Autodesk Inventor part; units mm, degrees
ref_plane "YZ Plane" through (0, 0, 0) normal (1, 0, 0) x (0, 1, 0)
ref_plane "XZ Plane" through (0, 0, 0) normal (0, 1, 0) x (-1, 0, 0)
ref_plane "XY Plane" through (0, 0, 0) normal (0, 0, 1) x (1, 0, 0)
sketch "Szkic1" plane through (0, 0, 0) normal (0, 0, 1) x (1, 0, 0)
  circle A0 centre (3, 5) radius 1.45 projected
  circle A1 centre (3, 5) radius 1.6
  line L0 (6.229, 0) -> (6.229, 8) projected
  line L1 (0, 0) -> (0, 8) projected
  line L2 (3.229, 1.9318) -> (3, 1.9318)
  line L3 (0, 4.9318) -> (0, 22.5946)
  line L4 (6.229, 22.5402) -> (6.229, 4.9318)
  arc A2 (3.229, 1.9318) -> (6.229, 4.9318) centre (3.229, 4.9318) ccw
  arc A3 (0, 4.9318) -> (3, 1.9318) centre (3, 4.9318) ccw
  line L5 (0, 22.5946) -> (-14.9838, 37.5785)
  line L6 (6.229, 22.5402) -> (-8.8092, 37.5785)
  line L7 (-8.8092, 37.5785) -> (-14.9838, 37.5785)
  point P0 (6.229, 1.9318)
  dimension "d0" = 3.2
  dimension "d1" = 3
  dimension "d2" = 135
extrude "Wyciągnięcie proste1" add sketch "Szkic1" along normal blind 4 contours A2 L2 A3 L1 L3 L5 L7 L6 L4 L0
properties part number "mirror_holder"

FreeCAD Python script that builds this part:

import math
import FreeCAD as App
import Part
import Sketcher
Q = App.Units.Quantity

doc = App.newDocument("Part")
body = doc.addObject("PartDesign::Body", "Body")

sketch1 = body.newObject("Sketcher::SketchObject", "Sketch")
sketch1.AttachmentSupport = (doc.getObject("XY_Plane"), [""])
sketch1.MapMode = "FlatFace"
sketch1.addGeometry([
    Part.ArcOfCircle(Part.Circle(App.Vector(3.23, 4.93, 0), App.Vector(0, 0, 1), 3), math.radians(-90), math.radians(0)),
    Part.LineSegment(App.Vector(6.23, 4.93, 0), App.Vector(6.23, 22.54, 0)),
    Part.LineSegment(App.Vector(6.23, 22.54, 0), App.Vector(-8.81, 37.58, 0)),
    Part.LineSegment(App.Vector(-8.81, 37.58, 0), App.Vector(-14.98, 37.58, 0)),
    Part.LineSegment(App.Vector(-14.98, 37.58, 0), App.Vector(0, 22.59, 0)),
    Part.LineSegment(App.Vector(0, 22.59, 0), App.Vector(0, 4.93, 0)),
    Part.ArcOfCircle(Part.Circle(App.Vector(3, 4.93, 0), App.Vector(0, 0, 1), 3), math.radians(180), math.radians(270)),
    Part.LineSegment(App.Vector(3, 1.93, 0), App.Vector(3.23, 1.93, 0)),
    Part.Circle(App.Vector(3, 5, 0), App.Vector(0, 0, 1), 1.6),
], False)
sketch1.addConstraint([
    Sketcher.Constraint("Tangent", 0, 2, 1, 1),
    Sketcher.Constraint("Coincident", 1, 2, 2, 1),
    Sketcher.Constraint("Coincident", 2, 2, 3, 1),
    Sketcher.Constraint("Coincident", 3, 2, 4, 1),
    Sketcher.Constraint("Coincident", 4, 2, 5, 1),
    Sketcher.Constraint("Tangent", 5, 2, 6, 1),
    Sketcher.Constraint("Tangent", 6, 2, 7, 1),
    Sketcher.Constraint("Tangent", 7, 2, 0, 1),
    Sketcher.Constraint("Vertical", 1),
    Sketcher.Constraint("Horizontal", 3),
    Sketcher.Constraint("Vertical", 5),
    Sketcher.Constraint("Horizontal", 7),
    Sketcher.Constraint("Equal", 0, 6),
    Sketcher.Constraint("PointOnObject", 4, 2, -2),
    Sketcher.Constraint("Parallel", 2, 4),
    Sketcher.Constraint("Vertical", 6, 3, 8, 3),
    Sketcher.Constraint("Radius", 0, 3.0),
    Sketcher.Constraint("Diameter", 8, 3.2),
    Sketcher.Constraint("Angle", 2, Q("134.9998 deg")),
    Sketcher.Constraint("DistanceY", -1, 1, 8, 3, 5.0),
    Sketcher.Constraint("DistanceX", 7, 1, 7, 2, 0.229),
    Sketcher.Constraint("DistanceX", 3, 2, 3, 1, 6.1746),
    Sketcher.Constraint("DistanceY", 1, 1, 1, 2, 17.6084),
    Sketcher.Constraint("DistanceY", 4, 2, 2, 2, 14.984),
    Sketcher.Constraint("DistanceY", -1, 1, 0, 3, 4.9318),
])
pad1 = body.newObject("PartDesign::Pad", "Pad")
pad1.Profile = sketch1
pad1.Length = 4

doc.recompute()
